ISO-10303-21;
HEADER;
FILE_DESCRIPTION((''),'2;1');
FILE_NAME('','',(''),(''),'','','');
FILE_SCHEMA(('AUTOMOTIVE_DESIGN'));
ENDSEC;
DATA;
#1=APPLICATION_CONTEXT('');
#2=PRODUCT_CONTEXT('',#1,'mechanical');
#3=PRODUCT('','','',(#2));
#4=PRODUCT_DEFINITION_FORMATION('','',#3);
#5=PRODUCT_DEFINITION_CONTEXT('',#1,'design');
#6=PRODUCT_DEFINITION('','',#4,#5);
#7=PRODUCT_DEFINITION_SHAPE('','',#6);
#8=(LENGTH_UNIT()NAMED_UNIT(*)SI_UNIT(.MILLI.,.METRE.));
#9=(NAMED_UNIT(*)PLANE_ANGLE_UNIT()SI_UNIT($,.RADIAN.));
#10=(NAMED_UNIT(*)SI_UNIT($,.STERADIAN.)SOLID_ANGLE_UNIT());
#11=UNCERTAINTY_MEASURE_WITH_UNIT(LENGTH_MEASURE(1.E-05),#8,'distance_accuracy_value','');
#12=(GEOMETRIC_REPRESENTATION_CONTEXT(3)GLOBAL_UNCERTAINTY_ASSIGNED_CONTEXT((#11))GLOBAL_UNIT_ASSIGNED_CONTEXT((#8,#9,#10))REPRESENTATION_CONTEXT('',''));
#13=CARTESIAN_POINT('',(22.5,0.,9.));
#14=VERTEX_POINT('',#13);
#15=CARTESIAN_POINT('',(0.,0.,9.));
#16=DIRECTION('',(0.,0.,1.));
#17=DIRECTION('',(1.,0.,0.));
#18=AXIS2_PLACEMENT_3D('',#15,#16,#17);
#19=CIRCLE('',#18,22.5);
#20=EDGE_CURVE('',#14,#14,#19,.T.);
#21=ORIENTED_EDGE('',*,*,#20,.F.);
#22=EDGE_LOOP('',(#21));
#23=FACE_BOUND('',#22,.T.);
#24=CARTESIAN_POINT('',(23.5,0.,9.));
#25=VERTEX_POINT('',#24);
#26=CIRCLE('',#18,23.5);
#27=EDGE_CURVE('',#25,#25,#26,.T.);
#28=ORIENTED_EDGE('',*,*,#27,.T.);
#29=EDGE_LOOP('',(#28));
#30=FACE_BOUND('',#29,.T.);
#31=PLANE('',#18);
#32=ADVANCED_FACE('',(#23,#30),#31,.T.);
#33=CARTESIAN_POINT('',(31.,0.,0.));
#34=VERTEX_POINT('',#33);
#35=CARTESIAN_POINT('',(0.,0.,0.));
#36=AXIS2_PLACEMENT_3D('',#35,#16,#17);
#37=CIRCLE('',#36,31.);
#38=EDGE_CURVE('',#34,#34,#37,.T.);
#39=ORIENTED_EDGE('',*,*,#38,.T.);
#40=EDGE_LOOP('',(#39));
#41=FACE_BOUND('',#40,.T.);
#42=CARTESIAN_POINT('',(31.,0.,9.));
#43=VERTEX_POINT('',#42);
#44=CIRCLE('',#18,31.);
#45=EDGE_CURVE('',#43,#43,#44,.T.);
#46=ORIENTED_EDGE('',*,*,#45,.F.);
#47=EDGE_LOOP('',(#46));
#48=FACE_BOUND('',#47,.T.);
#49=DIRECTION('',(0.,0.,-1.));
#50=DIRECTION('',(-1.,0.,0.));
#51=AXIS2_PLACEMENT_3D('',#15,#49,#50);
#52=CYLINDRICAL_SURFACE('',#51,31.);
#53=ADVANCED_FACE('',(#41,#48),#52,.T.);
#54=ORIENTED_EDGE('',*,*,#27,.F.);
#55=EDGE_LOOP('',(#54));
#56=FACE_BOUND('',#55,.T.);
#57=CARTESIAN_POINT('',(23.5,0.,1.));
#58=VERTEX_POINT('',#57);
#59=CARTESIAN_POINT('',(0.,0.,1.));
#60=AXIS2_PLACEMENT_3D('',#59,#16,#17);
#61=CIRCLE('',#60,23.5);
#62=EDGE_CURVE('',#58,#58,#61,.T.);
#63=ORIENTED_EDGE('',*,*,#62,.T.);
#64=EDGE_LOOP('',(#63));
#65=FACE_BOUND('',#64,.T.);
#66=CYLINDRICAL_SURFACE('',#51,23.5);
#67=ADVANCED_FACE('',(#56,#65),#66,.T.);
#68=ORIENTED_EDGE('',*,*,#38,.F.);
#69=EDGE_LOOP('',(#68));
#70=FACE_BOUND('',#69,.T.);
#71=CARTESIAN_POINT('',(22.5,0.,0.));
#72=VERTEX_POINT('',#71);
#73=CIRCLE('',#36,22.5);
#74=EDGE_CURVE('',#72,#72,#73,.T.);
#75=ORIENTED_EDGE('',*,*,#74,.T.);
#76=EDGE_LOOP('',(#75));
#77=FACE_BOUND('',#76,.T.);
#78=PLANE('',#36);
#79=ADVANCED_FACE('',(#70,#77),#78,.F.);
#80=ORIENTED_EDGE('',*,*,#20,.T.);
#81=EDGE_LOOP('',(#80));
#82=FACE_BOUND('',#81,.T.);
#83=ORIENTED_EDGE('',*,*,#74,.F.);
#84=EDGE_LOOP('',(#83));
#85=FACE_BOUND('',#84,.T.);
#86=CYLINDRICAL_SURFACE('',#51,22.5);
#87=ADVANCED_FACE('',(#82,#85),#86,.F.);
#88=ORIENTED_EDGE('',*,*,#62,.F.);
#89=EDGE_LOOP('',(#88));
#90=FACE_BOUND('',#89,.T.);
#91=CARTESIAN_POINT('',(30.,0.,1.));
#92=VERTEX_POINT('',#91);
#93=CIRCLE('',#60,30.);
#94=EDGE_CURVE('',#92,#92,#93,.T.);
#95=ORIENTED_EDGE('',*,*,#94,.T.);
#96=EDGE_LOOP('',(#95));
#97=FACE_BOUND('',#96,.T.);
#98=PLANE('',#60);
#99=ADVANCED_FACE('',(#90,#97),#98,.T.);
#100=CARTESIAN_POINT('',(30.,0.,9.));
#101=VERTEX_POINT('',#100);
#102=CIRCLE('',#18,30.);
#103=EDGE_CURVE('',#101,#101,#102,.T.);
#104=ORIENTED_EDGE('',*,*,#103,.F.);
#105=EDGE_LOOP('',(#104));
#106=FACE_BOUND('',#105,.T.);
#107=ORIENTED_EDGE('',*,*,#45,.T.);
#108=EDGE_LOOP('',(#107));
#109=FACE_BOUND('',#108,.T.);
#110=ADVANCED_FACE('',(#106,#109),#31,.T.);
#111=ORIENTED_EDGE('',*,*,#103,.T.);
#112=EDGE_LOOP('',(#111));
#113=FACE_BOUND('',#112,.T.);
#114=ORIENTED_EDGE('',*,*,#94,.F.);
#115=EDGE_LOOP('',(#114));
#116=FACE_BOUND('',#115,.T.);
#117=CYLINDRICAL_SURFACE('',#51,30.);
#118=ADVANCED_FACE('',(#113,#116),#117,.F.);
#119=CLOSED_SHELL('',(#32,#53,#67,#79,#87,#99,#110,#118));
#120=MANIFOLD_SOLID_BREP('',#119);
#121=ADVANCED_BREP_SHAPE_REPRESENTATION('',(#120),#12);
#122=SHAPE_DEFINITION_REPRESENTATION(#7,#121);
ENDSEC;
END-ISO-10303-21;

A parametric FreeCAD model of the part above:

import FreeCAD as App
import Part
import Sketcher
from FreeCAD import Vector


def faces_at(feature, points):
    """Names of the faces that lie closest to the given points."""
    faces = feature.Shape.Faces
    near = lambda p: min(range(len(faces)), key=lambda i: faces[i].distToShape(Part.Vertex(*p))[0])
    return sorted({f"Face{near(p) + 1}" for p in points})

doc = App.newDocument("Part")
body = doc.addObject("PartDesign::Body", "Body")

# Sketch on XY plane
sketch1 = body.newObject("Sketcher::SketchObject", "Sketch")
sketch1.AttachmentSupport = (doc.getObject("XY_Plane"), [""])
sketch1.MapMode = "FlatFace"
sketch1.addGeometry([
    Part.Circle(Vector(0, 0, 0), Vector(0, 0, 1), 31),
    Part.Circle(Vector(0, 0, 0), Vector(0, 0, 1), 22.5),
], False)
sketch1.addConstraint([
    Sketcher.Constraint("Coincident", 0, 3, -1, 1),
    Sketcher.Constraint("Coincident", 1, 3, -1, 1),
    Sketcher.Constraint("Diameter", 0, 62.0),
    Sketcher.Constraint("Diameter", 1, 45.0),
])
pad1 = body.newObject("PartDesign::Pad", "Pad")
pad1.Profile = sketch1
pad1.Length = 9
doc.recompute()

thickness = body.newObject("PartDesign::Thickness", "Thickness")
thickness.Base = (pad1, faces_at(pad1, [(-24.8, 0, 9)]))
thickness.Value = 1
thickness.Reversed = True
thickness.Join = "Intersection"

doc.recompute()
